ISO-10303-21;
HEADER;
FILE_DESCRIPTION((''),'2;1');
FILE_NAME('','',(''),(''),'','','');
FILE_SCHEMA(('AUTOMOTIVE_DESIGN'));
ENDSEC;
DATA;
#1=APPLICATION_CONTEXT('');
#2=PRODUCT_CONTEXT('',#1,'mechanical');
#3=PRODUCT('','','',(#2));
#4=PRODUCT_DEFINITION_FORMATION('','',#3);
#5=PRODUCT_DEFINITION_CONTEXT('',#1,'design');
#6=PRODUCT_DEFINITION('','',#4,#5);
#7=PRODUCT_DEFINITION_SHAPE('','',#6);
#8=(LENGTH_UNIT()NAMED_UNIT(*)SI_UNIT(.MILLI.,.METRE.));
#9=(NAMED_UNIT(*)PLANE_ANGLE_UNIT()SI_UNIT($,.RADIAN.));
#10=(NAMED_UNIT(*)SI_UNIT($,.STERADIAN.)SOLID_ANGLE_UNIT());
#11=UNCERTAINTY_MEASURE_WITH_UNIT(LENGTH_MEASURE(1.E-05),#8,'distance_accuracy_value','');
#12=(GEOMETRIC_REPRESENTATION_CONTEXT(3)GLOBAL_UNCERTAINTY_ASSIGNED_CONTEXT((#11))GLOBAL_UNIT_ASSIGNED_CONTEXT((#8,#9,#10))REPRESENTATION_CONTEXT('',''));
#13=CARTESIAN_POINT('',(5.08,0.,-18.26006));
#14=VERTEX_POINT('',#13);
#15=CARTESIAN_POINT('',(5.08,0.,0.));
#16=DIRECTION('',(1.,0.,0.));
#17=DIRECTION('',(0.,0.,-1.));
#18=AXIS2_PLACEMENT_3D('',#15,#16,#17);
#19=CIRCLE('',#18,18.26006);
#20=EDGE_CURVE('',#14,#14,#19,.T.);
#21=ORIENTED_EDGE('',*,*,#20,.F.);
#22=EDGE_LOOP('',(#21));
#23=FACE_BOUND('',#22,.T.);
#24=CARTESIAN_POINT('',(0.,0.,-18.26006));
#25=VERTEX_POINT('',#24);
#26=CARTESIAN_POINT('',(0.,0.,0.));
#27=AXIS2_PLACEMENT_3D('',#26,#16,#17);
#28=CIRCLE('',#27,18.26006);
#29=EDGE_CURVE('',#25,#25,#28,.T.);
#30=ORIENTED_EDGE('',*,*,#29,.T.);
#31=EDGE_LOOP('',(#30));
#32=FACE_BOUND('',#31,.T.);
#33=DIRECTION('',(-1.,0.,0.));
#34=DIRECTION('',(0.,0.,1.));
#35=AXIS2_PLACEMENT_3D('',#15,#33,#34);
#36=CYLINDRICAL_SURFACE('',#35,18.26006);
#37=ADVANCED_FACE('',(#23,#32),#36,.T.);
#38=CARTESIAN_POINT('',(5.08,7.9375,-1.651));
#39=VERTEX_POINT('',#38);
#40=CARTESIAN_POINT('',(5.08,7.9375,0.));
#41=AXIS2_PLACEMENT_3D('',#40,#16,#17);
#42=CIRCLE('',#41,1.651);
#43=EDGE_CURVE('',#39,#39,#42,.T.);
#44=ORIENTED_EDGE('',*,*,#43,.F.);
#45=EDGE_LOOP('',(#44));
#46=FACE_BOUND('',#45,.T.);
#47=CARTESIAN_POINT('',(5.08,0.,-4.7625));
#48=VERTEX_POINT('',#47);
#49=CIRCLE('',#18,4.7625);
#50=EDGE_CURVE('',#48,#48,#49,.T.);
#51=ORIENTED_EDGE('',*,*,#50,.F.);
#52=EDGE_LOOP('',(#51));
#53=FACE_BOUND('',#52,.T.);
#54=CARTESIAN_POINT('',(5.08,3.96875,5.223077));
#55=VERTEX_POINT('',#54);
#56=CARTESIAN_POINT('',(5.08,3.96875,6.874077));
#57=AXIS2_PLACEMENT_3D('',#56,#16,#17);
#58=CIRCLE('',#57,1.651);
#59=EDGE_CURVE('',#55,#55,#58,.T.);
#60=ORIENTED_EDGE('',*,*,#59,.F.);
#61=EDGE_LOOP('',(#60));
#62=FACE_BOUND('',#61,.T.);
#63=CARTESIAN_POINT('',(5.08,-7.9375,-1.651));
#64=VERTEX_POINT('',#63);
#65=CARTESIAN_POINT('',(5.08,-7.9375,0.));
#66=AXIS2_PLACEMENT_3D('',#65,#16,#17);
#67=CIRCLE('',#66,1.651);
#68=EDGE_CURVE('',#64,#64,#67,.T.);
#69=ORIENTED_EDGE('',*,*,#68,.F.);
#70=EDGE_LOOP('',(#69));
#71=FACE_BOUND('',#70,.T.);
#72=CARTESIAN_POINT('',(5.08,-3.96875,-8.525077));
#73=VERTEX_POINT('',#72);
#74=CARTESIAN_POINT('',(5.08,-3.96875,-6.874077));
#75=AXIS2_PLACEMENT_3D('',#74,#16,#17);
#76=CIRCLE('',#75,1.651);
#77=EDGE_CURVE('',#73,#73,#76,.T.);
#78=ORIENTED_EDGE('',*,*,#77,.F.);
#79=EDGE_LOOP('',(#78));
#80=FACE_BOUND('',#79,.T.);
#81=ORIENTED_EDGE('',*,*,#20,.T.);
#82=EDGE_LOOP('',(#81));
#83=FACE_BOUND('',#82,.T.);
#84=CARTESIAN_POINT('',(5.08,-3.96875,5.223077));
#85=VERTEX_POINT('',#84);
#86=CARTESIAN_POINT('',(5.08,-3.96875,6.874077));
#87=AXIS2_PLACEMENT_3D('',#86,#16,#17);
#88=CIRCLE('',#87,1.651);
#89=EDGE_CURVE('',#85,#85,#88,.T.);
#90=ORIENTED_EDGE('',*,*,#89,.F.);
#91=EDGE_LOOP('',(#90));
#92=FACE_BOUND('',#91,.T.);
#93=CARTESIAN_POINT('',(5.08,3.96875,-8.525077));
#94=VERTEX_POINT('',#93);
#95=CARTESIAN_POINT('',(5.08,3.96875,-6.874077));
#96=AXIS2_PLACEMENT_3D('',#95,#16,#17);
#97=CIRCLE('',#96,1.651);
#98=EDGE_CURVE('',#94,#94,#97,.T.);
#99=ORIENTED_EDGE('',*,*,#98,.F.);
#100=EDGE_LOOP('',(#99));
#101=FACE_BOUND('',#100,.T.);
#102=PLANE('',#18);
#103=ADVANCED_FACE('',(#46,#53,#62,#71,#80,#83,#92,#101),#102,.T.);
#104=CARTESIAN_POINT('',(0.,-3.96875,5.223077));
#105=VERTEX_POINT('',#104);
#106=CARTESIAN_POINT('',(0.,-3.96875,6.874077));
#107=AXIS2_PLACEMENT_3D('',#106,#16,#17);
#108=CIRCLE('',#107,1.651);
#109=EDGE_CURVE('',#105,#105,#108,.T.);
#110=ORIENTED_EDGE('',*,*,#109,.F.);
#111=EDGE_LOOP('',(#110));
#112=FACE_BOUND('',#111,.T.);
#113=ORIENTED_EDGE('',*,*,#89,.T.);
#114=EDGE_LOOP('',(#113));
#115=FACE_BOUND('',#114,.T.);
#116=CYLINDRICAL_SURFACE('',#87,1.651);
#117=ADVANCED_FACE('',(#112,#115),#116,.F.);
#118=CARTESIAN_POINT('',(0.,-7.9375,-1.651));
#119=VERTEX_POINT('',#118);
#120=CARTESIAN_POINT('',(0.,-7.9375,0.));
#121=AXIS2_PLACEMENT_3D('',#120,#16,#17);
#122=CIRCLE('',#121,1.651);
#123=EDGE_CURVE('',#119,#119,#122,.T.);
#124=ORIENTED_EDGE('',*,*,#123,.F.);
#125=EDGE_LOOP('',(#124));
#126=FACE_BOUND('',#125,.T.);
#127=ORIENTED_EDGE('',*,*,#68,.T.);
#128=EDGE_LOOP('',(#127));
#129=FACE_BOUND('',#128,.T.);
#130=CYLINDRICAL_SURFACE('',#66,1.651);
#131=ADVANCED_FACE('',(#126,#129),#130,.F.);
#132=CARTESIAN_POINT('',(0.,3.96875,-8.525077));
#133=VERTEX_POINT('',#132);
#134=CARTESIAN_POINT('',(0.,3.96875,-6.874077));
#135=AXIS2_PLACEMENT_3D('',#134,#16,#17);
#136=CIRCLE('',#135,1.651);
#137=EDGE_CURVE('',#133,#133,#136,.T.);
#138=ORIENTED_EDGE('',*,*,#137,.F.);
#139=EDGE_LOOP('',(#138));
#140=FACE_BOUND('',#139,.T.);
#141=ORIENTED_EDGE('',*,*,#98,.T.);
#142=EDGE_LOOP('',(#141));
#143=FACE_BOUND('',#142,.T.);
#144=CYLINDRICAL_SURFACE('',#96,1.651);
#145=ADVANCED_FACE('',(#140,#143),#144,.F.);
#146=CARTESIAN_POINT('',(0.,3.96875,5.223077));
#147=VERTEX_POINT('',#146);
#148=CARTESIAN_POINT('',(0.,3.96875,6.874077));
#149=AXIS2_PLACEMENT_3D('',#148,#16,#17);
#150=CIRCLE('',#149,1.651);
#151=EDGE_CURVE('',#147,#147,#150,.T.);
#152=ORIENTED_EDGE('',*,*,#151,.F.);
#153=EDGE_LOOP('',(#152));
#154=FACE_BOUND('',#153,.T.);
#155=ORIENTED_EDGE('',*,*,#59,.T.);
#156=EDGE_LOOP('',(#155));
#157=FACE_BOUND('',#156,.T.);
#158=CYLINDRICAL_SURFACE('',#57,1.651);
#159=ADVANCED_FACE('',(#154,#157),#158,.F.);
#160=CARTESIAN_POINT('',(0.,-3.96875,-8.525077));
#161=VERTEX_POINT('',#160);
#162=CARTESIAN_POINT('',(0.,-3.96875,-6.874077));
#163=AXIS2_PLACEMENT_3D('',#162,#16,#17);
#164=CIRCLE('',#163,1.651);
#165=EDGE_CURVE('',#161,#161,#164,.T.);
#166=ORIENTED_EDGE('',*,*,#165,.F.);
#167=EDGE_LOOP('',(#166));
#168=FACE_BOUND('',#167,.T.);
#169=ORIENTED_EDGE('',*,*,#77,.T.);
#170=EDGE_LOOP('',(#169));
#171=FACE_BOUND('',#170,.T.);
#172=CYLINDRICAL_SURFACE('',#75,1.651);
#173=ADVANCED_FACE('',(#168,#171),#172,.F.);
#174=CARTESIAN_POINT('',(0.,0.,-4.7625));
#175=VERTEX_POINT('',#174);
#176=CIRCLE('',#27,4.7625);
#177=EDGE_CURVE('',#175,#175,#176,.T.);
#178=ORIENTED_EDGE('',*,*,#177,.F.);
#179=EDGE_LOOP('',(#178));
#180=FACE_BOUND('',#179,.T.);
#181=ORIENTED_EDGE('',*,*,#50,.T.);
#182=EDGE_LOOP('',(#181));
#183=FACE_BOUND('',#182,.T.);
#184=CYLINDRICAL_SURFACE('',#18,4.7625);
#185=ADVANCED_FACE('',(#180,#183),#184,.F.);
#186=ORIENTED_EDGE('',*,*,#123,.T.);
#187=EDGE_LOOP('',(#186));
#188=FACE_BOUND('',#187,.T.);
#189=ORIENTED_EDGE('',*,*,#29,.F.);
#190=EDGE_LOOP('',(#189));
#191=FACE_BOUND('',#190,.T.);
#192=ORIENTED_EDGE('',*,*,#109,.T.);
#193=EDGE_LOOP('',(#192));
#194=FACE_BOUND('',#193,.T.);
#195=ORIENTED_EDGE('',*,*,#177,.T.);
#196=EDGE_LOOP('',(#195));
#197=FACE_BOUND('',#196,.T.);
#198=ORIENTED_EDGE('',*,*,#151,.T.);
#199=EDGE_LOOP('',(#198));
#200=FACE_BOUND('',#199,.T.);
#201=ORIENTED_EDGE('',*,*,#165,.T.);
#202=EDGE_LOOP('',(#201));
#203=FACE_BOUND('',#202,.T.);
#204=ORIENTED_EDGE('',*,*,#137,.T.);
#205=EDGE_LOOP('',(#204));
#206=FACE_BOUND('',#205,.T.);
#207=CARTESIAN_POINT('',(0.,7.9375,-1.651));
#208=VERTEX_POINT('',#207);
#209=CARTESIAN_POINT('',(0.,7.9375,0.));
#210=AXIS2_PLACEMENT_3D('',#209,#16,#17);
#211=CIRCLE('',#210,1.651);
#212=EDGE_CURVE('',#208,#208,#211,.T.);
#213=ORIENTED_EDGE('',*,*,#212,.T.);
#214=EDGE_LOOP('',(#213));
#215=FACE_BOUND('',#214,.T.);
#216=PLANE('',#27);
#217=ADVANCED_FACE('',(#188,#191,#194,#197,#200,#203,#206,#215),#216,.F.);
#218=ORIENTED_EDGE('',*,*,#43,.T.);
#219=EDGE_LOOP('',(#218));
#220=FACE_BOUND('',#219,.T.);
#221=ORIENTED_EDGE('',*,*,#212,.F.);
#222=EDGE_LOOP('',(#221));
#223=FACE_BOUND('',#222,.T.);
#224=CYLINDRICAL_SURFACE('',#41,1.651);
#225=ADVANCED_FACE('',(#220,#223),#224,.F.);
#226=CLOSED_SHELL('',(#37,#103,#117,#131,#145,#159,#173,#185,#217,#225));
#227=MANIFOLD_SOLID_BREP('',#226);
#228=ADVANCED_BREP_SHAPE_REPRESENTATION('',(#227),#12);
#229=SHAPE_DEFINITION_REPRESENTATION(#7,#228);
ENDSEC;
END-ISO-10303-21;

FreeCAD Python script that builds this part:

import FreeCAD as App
import Part
import Sketcher

V = App.Vector
Q = App.Units.Quantity

doc = App.newDocument("Part")
params = doc.addObject("Spreadsheet::Sheet", "Params")
for row, (alias, value) in enumerate([
    ("pad1_length", "0.2 in"),
    ("sketch2_diameter", "0.13 in"),
    ("hole_diameter", "0.13 in"),
    ("sketch3_diameter", "0.375 in"),
    ("hole2_diameter", "0.375 in"),
    ("hole2_depth", "2.25 in"),
], start=1):
    params.set(f"A{row}", alias)
    params.set(f"B{row}", "=" + value)
    params.setAlias(f"B{row}", alias)

body = doc.addObject("PartDesign::Body", "Body")

sketch1 = body.newObject("Sketcher::SketchObject", "Sketch")
sketch1.AttachmentSupport = (doc.getObject("YZ_Plane"), [""])
sketch1.MapMode = "FlatFace"
sketch1.addGeometry(Part.Circle(V(0, 0, 0), V(0, 0, 1), 18), False)
sketch1.addConstraint([
    Sketcher.Constraint("Coincident", 0, 3, -1, 1),
    Sketcher.Constraint("Diameter", 0, Q("1.4378 in")),
])
pad1 = body.newObject("PartDesign::Pad", "Pad")
pad1.Profile = sketch1
pad1.setExpression("Length", "Params.pad1_length")

sketch2 = body.newObject("Sketcher::SketchObject", "Sketch001")
sketch2.AttachmentSupport = (doc.getObject("YZ_Plane"), [""])
sketch2.MapMode = "FlatFace"
sketch2.AttachmentOffset = App.Placement(V(0, 0, 0.2 * 25.4), App.Rotation())
sketch2.addGeometry([
    Part.Circle(V(7.9, 0, 0), V(0, 0, 1), 1.7),
    Part.Circle(V(4, -6.9, 0), V(0, 0, 1), 1.7),
    Part.Circle(V(-4, -6.9, 0), V(0, 0, 1), 1.7),
    Part.Circle(V(-7.9, 0, 0), V(0, 0, 1), 1.7),
    Part.Circle(V(-4, 6.9, 0), V(0, 0, 1), 1.7),
    Part.Circle(V(4, 6.9, 0), V(0, 0, 1), 1.7),
    Part.Circle(V(0, 0, 0), V(0, 0, 1), 1.7),
], False)
sketch2.addConstraint([
    Sketcher.Constraint("Coincident", 6, 3, -1, 1),
    Sketcher.Constraint("Equal", 0, 1),
    Sketcher.Constraint("Equal", 1, 2),
    Sketcher.Constraint("Equal", 2, 3),
    Sketcher.Constraint("Equal", 3, 4),
    Sketcher.Constraint("Equal", 4, 5),
    Sketcher.Constraint("Equal", 5, 6),
    Sketcher.Constraint("Symmetric", 0, 3, 3, 3, -1, 1),
    Sketcher.Constraint("Symmetric", 1, 3, 4, 3, -1, 1),
    Sketcher.Constraint("Symmetric", 2, 3, 5, 3, -1, 1),
    Sketcher.Constraint("Symmetric", 1, 3, 2, 3, -2),
    Sketcher.Constraint("PointOnObject", 0, 3, -1),
    Sketcher.Constraint("Diameter", 0, Q("0.13 in")),
    Sketcher.Constraint("DistanceX", -1, 1, 0, 3, Q("0.3125 in")),
    Sketcher.Constraint("DistanceX", -1, 1, 1, 3, Q("0.15625 in")),
    Sketcher.Constraint("DistanceY", 1, 3, -1, 1, Q("6.874077 mm")),
])
sketch2.setExpression("Constraints[12]", "Params.sketch2_diameter")
doc.recompute()
hole = body.newObject("PartDesign::Hole", "Hole")
hole.Profile = sketch2
hole.ThreadType = "None"
hole.setExpression("Diameter", "Params.hole_diameter")
hole.DepthType = "ThroughAll"

sketch3 = body.newObject("Sketcher::SketchObject", "Sketch002")
sketch3.AttachmentSupport = (doc.getObject("YZ_Plane"), [""])
sketch3.MapMode = "FlatFace"
sketch3.AttachmentOffset = App.Placement(V(0, 0, 0.2 * 25.4), App.Rotation())
sketch3.addGeometry(Part.Circle(V(0, 0, 0), V(0, 0, 1), 4.8), False)
sketch3.addConstraint([
    Sketcher.Constraint("Coincident", 0, 3, -1, 1),
    Sketcher.Constraint("Diameter", 0, Q("0.375 in")),
])
sketch3.setExpression("Constraints[1]", "Params.sketch3_diameter")
doc.recompute()
hole2 = body.newObject("PartDesign::Hole", "Hole001")
hole2.Profile = sketch3
hole2.ThreadType = "None"
hole2.setExpression("Diameter", "Params.hole2_diameter")
hole2.DepthType = "Dimension"
hole2.setExpression("Depth", "Params.hole2_depth")
hole2.DrillPoint = "Angled"
hole2.DrillPointAngle = 118

doc.recompute()
